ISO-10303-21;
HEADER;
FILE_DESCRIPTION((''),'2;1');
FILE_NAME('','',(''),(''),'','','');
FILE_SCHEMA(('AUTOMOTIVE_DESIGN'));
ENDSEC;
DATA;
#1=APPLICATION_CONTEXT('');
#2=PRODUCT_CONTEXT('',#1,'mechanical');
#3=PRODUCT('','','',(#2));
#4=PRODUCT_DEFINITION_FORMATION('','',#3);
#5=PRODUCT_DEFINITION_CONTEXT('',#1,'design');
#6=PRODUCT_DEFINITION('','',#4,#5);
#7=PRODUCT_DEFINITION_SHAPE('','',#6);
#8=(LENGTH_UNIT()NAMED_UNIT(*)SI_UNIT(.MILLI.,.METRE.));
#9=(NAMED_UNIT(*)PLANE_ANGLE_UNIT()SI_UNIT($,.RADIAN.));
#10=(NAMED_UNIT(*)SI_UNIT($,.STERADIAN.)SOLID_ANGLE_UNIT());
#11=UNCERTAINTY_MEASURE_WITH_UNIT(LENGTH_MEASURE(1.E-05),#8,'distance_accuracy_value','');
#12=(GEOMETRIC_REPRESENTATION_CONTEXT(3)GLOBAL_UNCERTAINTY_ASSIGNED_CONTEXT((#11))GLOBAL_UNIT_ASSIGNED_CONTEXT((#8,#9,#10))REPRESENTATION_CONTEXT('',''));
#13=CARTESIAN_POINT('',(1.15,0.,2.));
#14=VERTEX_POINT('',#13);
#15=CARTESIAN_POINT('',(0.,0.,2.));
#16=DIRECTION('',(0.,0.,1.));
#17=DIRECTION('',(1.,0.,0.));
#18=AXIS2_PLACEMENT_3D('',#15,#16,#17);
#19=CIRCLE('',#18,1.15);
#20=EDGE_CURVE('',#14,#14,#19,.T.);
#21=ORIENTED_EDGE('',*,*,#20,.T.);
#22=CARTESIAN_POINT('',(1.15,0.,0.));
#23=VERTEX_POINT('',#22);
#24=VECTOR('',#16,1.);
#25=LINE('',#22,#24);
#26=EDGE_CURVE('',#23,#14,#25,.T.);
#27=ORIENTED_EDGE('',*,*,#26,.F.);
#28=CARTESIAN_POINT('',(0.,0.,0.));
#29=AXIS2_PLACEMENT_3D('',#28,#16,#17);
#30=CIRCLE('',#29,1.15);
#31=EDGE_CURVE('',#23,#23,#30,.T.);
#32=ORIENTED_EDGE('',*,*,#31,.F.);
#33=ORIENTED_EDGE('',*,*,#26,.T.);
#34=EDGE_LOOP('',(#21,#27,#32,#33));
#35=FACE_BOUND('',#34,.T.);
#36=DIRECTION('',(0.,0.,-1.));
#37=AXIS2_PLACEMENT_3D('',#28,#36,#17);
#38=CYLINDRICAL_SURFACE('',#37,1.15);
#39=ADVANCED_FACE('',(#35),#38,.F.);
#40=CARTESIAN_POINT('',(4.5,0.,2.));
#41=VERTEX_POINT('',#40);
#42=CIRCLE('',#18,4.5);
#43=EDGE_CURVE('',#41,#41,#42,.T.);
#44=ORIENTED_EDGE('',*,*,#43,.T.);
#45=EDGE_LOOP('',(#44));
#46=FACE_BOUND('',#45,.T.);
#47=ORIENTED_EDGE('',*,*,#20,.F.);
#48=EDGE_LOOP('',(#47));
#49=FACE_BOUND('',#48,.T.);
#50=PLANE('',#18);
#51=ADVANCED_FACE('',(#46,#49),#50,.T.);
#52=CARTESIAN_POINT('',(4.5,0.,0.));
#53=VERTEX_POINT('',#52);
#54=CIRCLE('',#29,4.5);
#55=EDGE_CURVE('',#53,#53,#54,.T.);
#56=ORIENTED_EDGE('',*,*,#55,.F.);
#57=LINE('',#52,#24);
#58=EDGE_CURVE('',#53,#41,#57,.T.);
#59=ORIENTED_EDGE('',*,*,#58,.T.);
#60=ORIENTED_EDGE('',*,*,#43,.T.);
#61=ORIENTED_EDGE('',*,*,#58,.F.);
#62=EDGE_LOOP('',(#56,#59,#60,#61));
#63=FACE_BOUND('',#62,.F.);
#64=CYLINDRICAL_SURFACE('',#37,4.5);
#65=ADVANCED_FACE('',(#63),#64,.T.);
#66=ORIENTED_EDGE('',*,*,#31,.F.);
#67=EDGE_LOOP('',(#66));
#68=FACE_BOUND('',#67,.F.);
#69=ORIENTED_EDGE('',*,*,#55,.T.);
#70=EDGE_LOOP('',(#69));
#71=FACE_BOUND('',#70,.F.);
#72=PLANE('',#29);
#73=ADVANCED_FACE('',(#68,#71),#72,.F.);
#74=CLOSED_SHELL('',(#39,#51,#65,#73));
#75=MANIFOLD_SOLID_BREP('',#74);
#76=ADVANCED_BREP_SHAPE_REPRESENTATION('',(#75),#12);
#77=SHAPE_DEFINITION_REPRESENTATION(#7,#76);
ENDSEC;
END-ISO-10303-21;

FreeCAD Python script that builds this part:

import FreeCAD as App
import Part
import Sketcher

V = App.Vector

doc = App.newDocument("Part")
params = doc.addObject("Spreadsheet::Sheet", "Params")
for row, (alias, value) in enumerate([
    ("sketch1_diameter", "9 mm"),
    ("sketch1_diameter2", "2.3 mm"),
    ("pad1_length", "2 mm"),
], start=1):
    params.set(f"A{row}", alias)
    params.set(f"B{row}", "=" + value)
    params.setAlias(f"B{row}", alias)

body = doc.addObject("PartDesign::Body", "Body")

sketch1 = body.newObject("Sketcher::SketchObject", "Sketch")
sketch1.AttachmentSupport = (doc.getObject("XY_Plane"), [""])
sketch1.MapMode = "FlatFace"
sketch1.addGeometry(Part.Circle(V(0, 0, 0), V(0, 0, 1), 4.5), False)
sketch1.addGeometry(Part.Circle(V(0, 0, 0), V(0, 0, 1), 1.1), False)
sketch1.addConstraint(Sketcher.Constraint("Coincident", 0, 3, -1, 1))
sketch1.addConstraint(Sketcher.Constraint("Coincident", 1, 3, -1, 1))
sketch1.addConstraint(Sketcher.Constraint("Diameter", 0, 9.0))
sketch1.addConstraint(Sketcher.Constraint("Diameter", 1, 2.3))
sketch1.setExpression("Constraints[2]", "Params.sketch1_diameter")
sketch1.setExpression("Constraints[3]", "Params.sketch1_diameter2")
pad1 = body.newObject("PartDesign::Pad", "Pad")
pad1.Profile = sketch1
pad1.setExpression("Length", "Params.pad1_length")

doc.recompute()
